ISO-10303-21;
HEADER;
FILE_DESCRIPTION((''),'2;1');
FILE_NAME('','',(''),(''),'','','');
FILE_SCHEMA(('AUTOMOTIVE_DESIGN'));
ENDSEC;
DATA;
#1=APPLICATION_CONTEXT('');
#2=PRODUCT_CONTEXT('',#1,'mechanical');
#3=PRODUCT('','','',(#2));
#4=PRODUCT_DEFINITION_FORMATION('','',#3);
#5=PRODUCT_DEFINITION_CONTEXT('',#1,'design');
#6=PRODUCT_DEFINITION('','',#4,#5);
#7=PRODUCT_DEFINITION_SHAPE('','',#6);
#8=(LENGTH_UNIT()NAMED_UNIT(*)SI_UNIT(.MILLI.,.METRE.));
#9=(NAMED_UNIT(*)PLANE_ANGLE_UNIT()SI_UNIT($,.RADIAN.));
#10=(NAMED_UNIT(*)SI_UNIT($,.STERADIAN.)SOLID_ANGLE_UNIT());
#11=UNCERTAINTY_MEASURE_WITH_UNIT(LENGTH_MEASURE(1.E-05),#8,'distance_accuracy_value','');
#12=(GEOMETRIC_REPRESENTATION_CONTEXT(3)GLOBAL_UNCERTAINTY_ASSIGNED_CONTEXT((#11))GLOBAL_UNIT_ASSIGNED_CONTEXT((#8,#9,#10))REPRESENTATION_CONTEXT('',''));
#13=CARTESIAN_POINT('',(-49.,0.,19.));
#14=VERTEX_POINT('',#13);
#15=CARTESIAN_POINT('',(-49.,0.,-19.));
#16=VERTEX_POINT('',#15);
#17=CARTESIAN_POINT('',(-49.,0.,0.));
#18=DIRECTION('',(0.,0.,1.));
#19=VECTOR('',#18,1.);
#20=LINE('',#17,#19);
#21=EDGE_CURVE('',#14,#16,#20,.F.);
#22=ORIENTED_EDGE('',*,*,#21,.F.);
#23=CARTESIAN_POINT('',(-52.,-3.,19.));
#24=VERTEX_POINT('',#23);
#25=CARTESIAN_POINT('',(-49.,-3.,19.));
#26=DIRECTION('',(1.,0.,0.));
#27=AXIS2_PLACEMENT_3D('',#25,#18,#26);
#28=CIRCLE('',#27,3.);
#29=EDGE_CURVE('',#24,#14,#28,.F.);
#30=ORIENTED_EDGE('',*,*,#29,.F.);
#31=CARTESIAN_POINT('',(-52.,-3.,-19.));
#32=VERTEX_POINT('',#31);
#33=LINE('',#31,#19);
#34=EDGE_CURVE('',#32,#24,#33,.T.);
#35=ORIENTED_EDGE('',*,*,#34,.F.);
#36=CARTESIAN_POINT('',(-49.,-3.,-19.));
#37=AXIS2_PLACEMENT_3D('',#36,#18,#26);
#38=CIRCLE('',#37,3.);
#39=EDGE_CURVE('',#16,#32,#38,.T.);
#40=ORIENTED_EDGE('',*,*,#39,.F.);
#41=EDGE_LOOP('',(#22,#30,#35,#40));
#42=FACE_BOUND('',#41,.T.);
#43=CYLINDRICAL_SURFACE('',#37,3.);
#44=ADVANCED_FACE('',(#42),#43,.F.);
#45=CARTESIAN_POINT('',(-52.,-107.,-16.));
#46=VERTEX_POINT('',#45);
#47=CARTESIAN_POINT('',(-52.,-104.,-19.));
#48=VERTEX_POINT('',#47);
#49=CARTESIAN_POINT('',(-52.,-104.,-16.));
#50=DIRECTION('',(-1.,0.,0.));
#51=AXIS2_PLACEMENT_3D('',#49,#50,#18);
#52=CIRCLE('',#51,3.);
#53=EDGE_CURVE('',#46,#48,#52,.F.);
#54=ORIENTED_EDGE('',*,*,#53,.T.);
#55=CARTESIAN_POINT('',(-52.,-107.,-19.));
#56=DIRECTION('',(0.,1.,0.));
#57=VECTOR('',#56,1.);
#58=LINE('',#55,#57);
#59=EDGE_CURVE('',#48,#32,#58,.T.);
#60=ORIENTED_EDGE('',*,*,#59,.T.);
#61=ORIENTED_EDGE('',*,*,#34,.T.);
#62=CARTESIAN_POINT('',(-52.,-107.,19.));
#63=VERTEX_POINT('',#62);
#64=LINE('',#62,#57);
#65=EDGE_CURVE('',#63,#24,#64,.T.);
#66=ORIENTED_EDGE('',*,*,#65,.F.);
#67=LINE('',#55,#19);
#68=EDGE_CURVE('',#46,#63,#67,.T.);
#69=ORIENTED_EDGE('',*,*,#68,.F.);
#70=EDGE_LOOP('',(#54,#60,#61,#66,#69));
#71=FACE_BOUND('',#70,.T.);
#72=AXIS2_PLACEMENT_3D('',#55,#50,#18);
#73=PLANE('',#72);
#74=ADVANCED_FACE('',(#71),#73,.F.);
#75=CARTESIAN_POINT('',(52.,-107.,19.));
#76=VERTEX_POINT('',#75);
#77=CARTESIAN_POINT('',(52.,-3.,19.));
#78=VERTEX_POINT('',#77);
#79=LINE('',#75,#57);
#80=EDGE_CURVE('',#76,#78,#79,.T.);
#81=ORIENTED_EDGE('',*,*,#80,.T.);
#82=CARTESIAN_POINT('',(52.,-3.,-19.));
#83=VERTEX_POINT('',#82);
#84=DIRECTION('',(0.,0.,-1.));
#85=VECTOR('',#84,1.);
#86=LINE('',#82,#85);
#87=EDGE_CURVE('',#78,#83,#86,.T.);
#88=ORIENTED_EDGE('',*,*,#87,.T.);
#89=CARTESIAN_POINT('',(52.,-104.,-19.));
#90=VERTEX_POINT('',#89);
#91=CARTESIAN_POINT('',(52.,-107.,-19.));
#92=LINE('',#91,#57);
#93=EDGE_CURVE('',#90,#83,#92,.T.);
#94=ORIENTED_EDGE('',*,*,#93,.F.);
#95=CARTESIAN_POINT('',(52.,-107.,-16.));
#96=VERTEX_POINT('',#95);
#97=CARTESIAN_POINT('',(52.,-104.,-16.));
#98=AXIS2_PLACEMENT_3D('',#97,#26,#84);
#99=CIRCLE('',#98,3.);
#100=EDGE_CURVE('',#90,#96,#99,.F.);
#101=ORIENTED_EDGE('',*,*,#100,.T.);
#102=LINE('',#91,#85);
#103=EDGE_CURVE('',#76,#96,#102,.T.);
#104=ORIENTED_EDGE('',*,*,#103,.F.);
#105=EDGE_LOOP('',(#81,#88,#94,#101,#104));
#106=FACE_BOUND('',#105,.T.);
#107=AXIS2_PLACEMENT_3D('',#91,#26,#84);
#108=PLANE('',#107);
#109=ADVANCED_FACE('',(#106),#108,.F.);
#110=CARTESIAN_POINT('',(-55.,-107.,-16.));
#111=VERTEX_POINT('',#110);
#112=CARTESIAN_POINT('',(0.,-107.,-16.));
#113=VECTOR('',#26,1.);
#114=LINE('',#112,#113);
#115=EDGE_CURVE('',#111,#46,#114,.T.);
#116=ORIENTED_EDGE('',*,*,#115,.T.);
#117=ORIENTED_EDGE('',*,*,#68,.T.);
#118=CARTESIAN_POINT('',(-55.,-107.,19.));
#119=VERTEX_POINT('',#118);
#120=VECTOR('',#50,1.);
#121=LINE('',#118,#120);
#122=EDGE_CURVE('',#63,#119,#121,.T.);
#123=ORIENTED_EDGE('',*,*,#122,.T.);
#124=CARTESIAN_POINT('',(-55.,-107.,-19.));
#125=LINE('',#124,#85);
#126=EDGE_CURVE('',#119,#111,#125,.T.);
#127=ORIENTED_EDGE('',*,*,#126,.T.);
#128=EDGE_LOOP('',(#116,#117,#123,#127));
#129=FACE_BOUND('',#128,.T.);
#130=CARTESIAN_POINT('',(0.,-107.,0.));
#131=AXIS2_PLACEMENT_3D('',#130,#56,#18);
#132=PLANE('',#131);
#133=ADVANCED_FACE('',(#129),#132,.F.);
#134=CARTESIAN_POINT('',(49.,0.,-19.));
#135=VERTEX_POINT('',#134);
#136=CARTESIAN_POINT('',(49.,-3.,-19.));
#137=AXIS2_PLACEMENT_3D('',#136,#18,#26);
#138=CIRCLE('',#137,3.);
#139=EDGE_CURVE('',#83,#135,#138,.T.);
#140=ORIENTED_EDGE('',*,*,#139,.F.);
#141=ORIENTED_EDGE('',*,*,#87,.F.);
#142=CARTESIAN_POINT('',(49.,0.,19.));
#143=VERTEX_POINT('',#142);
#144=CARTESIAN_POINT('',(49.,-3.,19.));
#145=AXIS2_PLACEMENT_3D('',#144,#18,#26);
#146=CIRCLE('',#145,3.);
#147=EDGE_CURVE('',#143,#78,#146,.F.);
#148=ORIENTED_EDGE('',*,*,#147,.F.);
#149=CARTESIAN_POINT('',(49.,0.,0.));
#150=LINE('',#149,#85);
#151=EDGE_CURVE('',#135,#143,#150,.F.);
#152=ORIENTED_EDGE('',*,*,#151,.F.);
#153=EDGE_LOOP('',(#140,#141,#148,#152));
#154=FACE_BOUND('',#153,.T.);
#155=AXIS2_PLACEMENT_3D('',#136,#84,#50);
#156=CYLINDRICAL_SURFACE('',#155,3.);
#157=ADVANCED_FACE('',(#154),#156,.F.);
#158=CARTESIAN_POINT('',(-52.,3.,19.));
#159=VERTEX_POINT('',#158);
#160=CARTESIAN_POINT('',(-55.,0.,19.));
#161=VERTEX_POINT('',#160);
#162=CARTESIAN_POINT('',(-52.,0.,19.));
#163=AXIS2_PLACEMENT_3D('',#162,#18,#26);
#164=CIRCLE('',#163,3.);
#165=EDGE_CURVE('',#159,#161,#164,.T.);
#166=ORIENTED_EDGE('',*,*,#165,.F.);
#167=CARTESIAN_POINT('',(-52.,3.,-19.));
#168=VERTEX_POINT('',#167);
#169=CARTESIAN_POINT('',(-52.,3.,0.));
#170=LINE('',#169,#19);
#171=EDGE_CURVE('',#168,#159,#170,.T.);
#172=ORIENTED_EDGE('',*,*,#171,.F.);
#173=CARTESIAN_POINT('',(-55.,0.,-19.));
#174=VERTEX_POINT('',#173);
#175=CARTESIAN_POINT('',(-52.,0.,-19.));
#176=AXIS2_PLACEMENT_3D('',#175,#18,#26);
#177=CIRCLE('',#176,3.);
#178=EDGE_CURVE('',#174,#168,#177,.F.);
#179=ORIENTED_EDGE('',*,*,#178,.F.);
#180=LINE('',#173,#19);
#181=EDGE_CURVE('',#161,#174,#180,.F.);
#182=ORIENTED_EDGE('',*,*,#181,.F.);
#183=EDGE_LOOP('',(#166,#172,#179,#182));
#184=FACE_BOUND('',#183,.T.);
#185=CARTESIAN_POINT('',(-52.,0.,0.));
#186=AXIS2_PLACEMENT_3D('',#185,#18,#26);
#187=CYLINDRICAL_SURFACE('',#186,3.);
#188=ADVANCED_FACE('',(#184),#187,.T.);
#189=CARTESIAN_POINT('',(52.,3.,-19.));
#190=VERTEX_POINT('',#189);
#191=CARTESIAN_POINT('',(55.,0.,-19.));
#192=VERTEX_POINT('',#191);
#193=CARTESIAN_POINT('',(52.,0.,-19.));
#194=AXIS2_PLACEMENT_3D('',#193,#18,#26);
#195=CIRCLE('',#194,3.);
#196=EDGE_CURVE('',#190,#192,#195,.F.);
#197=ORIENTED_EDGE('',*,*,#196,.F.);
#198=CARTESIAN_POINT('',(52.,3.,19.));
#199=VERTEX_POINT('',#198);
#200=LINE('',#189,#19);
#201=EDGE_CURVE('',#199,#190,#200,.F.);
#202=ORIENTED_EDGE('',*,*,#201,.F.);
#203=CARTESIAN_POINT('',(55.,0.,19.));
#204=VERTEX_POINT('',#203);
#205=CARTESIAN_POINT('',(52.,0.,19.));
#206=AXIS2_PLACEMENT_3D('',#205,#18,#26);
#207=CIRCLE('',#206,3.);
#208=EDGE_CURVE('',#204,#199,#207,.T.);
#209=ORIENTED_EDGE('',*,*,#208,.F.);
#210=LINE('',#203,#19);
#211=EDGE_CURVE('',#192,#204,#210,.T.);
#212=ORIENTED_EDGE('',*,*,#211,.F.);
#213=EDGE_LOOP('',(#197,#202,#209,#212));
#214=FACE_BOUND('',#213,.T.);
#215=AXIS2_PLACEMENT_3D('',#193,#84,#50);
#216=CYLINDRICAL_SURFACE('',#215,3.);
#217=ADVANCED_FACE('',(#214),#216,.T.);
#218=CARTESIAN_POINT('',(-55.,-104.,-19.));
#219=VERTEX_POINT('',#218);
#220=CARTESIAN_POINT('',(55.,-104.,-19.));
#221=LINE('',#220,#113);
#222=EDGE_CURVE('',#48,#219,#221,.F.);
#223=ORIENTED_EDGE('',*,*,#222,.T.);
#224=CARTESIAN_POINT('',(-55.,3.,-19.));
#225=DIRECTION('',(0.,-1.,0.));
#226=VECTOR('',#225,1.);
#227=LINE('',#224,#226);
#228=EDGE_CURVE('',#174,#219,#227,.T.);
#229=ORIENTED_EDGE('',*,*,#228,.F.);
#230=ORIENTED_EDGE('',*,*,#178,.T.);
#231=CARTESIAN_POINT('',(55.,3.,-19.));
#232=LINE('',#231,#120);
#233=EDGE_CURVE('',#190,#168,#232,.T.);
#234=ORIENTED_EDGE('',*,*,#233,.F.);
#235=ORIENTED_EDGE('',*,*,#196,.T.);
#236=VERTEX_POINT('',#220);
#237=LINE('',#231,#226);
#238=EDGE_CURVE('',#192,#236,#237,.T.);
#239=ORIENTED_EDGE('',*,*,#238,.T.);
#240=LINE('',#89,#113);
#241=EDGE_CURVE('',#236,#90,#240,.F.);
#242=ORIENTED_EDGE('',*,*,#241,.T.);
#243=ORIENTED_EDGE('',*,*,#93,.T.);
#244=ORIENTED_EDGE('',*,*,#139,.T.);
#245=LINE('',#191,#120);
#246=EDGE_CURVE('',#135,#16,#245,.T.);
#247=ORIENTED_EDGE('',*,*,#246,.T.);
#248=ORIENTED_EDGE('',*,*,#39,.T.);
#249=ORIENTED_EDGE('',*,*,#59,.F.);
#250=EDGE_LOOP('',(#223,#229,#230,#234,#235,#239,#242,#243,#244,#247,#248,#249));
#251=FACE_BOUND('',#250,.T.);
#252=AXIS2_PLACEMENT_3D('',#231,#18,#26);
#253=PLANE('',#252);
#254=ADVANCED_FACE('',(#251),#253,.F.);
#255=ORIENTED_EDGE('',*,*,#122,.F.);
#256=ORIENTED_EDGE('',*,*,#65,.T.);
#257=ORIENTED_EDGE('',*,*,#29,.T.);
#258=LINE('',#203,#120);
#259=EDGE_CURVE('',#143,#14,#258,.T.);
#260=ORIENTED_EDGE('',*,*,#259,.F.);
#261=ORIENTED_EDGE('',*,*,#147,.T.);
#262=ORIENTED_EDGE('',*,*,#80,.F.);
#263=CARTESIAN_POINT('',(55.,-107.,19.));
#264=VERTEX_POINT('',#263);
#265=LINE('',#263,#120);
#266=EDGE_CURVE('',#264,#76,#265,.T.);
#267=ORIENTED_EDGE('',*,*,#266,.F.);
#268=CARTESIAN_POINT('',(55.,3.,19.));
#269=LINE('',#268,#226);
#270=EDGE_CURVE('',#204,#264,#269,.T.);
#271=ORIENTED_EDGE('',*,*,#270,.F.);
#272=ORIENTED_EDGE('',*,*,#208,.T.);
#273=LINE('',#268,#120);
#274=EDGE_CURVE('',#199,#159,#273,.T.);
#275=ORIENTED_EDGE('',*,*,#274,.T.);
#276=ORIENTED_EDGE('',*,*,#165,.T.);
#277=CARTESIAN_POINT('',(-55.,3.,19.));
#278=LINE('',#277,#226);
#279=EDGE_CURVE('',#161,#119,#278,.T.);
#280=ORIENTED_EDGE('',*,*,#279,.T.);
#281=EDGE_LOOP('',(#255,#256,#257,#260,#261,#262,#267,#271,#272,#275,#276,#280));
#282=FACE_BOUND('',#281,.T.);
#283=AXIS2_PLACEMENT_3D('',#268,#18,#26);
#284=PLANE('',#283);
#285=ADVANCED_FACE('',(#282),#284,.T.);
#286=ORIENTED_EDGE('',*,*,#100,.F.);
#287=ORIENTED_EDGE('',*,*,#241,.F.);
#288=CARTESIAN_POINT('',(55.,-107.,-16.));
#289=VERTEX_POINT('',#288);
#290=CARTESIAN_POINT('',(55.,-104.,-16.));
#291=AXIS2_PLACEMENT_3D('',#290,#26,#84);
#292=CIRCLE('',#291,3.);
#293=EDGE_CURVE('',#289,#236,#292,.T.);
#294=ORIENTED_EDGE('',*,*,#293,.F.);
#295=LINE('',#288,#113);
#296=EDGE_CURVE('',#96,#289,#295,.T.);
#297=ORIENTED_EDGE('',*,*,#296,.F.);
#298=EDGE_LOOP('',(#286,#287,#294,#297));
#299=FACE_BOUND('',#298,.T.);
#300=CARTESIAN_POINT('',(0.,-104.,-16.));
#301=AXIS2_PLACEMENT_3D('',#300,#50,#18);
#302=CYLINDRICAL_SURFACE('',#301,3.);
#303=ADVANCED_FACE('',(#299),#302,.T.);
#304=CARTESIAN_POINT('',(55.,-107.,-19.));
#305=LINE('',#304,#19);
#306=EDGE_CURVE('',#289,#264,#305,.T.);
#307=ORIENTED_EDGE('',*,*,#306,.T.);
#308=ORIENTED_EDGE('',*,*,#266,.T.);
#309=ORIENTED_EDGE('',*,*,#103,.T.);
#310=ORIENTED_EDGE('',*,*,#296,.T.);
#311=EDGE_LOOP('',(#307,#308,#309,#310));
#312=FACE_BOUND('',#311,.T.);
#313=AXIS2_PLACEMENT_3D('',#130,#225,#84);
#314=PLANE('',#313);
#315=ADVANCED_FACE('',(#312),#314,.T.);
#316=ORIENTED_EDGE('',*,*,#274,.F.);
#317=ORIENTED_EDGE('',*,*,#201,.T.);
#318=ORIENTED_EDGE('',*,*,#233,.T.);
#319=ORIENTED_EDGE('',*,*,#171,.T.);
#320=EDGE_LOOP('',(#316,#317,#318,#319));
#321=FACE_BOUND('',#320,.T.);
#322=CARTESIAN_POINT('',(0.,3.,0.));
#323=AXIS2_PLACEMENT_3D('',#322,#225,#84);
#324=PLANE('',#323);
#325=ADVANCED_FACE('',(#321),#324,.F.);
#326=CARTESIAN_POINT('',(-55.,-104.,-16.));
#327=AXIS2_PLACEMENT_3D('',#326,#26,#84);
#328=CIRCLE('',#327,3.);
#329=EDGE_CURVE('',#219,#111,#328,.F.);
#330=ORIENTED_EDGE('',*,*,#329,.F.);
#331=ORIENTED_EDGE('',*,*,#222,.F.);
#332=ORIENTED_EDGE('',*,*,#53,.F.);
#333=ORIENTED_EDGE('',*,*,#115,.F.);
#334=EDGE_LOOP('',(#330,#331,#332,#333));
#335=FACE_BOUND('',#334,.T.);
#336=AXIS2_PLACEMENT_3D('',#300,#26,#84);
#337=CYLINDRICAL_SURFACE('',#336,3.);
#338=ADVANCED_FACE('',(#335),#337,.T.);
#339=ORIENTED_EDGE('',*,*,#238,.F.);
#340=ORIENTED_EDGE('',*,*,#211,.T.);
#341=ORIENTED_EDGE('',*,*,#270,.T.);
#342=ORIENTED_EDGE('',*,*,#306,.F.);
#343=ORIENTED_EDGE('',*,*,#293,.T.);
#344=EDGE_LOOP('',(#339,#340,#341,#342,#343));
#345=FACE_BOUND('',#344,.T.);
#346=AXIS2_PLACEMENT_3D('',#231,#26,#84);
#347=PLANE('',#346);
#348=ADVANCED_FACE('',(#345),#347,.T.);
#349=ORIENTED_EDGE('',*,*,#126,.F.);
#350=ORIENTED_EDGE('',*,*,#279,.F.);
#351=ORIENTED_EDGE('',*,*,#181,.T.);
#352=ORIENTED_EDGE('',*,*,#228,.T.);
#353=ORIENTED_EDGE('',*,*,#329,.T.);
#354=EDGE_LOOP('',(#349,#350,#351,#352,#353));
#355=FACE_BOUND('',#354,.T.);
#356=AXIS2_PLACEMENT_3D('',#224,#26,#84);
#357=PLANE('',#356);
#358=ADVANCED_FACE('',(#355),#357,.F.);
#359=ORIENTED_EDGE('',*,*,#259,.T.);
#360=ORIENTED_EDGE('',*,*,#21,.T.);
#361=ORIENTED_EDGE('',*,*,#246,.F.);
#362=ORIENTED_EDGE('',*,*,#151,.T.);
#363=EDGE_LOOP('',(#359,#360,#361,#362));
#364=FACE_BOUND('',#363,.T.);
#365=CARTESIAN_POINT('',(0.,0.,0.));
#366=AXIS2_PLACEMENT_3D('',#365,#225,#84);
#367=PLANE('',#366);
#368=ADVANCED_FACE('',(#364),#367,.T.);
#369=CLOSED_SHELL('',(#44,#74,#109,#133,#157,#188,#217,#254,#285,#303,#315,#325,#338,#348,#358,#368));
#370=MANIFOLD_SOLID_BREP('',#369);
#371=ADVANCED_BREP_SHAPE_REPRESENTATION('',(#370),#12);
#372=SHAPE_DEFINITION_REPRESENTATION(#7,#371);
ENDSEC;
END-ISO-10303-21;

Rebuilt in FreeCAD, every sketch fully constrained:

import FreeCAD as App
import Part
import Sketcher
from FreeCAD import Vector
Q = App.Units.Quantity


def edges_at(feature, points):
    """Names of the edges that pass closest to the given points."""
    edges = feature.Shape.Edges
    near = lambda p: min(range(len(edges)), key=lambda i: edges[i].distToShape(Part.Vertex(*p))[0])
    return sorted({f"Edge{near(p) + 1}" for p in points})


def add_polygon(sketch, points):
    """Adds a closed chain of lines whose ends are joined by coincident constraints."""
    first, n = sketch.GeometryCount, len(points)
    for a, b in zip(points, points[1:] + points[:1]):
        sketch.addGeometry(Part.LineSegment(App.Vector(*a, 0), App.Vector(*b, 0)), False)
    for i in range(n):
        sketch.addConstraint(Sketcher.Constraint("Coincident", first + i, 2, first + (i + 1) % n, 1))

doc = App.newDocument("Part")
body = doc.addObject("PartDesign::Body", "Body")

sketch1 = body.newObject("Sketcher::SketchObject", "Sketch")
sketch1.AttachmentSupport = (doc.getObject("XZ_Plane"), [""])
sketch1.MapMode = "FlatFace"
add_polygon(sketch1, [(-55, -19), (-55, 19), (55, 19), (55, -19)])
sketch1.addConstraint([
    Sketcher.Constraint("Vertical", 0),
    Sketcher.Constraint("Horizontal", 1),
    Sketcher.Constraint("Vertical", 2),
    Sketcher.Constraint("Horizontal", 3),
    Sketcher.Constraint("Symmetric", 0, 2, 2, 2, -1, 1),
    Sketcher.Constraint("DistanceX", 1, 1, 1, 2, Q("110 mm")),
    Sketcher.Constraint("DistanceY", 0, 1, 0, 2, Q("38 mm")),
])
pad1 = body.newObject("PartDesign::Pad", "Pad")
pad1.Profile = sketch1
pad1.Length = 3
pad1.Reversed = True

sketch2 = body.newObject("Sketcher::SketchObject", "Sketch001")
sketch2.AttachmentSupport = (doc.getObject("XZ_Plane"), [""])
sketch2.MapMode = "FlatFace"
add_polygon(sketch2, [(52, 19), (52, -19), (55, -19), (55, 19)])
add_polygon(sketch2, [(-55, 19), (-55, -19), (-52, -19), (-52, 19)])
sketch2.addConstraint([
    Sketcher.Constraint("Vertical", 0),
    Sketcher.Constraint("Horizontal", 1),
    Sketcher.Constraint("Vertical", 2),
    Sketcher.Constraint("Horizontal", 3),
    Sketcher.Constraint("Vertical", 4),
    Sketcher.Constraint("Horizontal", 5),
    Sketcher.Constraint("Vertical", 6),
    Sketcher.Constraint("Horizontal", 7),
    Sketcher.Constraint("Symmetric", 2, 2, 4, 2, -1, 1),
    Sketcher.Constraint("Symmetric", 0, 2, 6, 2, -1, 1),
    Sketcher.Constraint("Horizontal", 1, 2, 4, 2),
    Sketcher.Constraint("DistanceX", 1, 1, 1, 2, Q("3 mm")),
    Sketcher.Constraint("DistanceY", 0, 2, 0, 1, Q("38 mm")),
    Sketcher.Constraint("DistanceX", -1, 1, 0, 2, Q("52 mm")),
])
pad2 = body.newObject("PartDesign::Pad", "Pad001")
pad2.Profile = sketch2
pad2.Length = 107
doc.recompute()

fillet = body.newObject("PartDesign::Fillet", "Fillet")
fillet.Base = (pad2, edges_at(pad2, [(-55, 3, 0), (55, 3, 0)]))
fillet.Radius = 3
doc.recompute()

fillet2 = body.newObject("PartDesign::Fillet", "Fillet001")
fillet2.Base = (fillet, edges_at(fillet, [(52, 0, 0)]))
fillet2.Radius = 3
doc.recompute()

fillet3 = body.newObject("PartDesign::Fillet", "Fillet002")
fillet3.Base = (fillet2, edges_at(fillet2, [(-52, 0, 0)]))
fillet3.Radius = 3
doc.recompute()

fillet4 = body.newObject("PartDesign::Fillet", "Fillet003")
fillet4.Base = (fillet3, edges_at(fillet3, [(53.5, -107, -19), (-53.5, -107, -19)]))
fillet4.Radius = 3

doc.recompute()
